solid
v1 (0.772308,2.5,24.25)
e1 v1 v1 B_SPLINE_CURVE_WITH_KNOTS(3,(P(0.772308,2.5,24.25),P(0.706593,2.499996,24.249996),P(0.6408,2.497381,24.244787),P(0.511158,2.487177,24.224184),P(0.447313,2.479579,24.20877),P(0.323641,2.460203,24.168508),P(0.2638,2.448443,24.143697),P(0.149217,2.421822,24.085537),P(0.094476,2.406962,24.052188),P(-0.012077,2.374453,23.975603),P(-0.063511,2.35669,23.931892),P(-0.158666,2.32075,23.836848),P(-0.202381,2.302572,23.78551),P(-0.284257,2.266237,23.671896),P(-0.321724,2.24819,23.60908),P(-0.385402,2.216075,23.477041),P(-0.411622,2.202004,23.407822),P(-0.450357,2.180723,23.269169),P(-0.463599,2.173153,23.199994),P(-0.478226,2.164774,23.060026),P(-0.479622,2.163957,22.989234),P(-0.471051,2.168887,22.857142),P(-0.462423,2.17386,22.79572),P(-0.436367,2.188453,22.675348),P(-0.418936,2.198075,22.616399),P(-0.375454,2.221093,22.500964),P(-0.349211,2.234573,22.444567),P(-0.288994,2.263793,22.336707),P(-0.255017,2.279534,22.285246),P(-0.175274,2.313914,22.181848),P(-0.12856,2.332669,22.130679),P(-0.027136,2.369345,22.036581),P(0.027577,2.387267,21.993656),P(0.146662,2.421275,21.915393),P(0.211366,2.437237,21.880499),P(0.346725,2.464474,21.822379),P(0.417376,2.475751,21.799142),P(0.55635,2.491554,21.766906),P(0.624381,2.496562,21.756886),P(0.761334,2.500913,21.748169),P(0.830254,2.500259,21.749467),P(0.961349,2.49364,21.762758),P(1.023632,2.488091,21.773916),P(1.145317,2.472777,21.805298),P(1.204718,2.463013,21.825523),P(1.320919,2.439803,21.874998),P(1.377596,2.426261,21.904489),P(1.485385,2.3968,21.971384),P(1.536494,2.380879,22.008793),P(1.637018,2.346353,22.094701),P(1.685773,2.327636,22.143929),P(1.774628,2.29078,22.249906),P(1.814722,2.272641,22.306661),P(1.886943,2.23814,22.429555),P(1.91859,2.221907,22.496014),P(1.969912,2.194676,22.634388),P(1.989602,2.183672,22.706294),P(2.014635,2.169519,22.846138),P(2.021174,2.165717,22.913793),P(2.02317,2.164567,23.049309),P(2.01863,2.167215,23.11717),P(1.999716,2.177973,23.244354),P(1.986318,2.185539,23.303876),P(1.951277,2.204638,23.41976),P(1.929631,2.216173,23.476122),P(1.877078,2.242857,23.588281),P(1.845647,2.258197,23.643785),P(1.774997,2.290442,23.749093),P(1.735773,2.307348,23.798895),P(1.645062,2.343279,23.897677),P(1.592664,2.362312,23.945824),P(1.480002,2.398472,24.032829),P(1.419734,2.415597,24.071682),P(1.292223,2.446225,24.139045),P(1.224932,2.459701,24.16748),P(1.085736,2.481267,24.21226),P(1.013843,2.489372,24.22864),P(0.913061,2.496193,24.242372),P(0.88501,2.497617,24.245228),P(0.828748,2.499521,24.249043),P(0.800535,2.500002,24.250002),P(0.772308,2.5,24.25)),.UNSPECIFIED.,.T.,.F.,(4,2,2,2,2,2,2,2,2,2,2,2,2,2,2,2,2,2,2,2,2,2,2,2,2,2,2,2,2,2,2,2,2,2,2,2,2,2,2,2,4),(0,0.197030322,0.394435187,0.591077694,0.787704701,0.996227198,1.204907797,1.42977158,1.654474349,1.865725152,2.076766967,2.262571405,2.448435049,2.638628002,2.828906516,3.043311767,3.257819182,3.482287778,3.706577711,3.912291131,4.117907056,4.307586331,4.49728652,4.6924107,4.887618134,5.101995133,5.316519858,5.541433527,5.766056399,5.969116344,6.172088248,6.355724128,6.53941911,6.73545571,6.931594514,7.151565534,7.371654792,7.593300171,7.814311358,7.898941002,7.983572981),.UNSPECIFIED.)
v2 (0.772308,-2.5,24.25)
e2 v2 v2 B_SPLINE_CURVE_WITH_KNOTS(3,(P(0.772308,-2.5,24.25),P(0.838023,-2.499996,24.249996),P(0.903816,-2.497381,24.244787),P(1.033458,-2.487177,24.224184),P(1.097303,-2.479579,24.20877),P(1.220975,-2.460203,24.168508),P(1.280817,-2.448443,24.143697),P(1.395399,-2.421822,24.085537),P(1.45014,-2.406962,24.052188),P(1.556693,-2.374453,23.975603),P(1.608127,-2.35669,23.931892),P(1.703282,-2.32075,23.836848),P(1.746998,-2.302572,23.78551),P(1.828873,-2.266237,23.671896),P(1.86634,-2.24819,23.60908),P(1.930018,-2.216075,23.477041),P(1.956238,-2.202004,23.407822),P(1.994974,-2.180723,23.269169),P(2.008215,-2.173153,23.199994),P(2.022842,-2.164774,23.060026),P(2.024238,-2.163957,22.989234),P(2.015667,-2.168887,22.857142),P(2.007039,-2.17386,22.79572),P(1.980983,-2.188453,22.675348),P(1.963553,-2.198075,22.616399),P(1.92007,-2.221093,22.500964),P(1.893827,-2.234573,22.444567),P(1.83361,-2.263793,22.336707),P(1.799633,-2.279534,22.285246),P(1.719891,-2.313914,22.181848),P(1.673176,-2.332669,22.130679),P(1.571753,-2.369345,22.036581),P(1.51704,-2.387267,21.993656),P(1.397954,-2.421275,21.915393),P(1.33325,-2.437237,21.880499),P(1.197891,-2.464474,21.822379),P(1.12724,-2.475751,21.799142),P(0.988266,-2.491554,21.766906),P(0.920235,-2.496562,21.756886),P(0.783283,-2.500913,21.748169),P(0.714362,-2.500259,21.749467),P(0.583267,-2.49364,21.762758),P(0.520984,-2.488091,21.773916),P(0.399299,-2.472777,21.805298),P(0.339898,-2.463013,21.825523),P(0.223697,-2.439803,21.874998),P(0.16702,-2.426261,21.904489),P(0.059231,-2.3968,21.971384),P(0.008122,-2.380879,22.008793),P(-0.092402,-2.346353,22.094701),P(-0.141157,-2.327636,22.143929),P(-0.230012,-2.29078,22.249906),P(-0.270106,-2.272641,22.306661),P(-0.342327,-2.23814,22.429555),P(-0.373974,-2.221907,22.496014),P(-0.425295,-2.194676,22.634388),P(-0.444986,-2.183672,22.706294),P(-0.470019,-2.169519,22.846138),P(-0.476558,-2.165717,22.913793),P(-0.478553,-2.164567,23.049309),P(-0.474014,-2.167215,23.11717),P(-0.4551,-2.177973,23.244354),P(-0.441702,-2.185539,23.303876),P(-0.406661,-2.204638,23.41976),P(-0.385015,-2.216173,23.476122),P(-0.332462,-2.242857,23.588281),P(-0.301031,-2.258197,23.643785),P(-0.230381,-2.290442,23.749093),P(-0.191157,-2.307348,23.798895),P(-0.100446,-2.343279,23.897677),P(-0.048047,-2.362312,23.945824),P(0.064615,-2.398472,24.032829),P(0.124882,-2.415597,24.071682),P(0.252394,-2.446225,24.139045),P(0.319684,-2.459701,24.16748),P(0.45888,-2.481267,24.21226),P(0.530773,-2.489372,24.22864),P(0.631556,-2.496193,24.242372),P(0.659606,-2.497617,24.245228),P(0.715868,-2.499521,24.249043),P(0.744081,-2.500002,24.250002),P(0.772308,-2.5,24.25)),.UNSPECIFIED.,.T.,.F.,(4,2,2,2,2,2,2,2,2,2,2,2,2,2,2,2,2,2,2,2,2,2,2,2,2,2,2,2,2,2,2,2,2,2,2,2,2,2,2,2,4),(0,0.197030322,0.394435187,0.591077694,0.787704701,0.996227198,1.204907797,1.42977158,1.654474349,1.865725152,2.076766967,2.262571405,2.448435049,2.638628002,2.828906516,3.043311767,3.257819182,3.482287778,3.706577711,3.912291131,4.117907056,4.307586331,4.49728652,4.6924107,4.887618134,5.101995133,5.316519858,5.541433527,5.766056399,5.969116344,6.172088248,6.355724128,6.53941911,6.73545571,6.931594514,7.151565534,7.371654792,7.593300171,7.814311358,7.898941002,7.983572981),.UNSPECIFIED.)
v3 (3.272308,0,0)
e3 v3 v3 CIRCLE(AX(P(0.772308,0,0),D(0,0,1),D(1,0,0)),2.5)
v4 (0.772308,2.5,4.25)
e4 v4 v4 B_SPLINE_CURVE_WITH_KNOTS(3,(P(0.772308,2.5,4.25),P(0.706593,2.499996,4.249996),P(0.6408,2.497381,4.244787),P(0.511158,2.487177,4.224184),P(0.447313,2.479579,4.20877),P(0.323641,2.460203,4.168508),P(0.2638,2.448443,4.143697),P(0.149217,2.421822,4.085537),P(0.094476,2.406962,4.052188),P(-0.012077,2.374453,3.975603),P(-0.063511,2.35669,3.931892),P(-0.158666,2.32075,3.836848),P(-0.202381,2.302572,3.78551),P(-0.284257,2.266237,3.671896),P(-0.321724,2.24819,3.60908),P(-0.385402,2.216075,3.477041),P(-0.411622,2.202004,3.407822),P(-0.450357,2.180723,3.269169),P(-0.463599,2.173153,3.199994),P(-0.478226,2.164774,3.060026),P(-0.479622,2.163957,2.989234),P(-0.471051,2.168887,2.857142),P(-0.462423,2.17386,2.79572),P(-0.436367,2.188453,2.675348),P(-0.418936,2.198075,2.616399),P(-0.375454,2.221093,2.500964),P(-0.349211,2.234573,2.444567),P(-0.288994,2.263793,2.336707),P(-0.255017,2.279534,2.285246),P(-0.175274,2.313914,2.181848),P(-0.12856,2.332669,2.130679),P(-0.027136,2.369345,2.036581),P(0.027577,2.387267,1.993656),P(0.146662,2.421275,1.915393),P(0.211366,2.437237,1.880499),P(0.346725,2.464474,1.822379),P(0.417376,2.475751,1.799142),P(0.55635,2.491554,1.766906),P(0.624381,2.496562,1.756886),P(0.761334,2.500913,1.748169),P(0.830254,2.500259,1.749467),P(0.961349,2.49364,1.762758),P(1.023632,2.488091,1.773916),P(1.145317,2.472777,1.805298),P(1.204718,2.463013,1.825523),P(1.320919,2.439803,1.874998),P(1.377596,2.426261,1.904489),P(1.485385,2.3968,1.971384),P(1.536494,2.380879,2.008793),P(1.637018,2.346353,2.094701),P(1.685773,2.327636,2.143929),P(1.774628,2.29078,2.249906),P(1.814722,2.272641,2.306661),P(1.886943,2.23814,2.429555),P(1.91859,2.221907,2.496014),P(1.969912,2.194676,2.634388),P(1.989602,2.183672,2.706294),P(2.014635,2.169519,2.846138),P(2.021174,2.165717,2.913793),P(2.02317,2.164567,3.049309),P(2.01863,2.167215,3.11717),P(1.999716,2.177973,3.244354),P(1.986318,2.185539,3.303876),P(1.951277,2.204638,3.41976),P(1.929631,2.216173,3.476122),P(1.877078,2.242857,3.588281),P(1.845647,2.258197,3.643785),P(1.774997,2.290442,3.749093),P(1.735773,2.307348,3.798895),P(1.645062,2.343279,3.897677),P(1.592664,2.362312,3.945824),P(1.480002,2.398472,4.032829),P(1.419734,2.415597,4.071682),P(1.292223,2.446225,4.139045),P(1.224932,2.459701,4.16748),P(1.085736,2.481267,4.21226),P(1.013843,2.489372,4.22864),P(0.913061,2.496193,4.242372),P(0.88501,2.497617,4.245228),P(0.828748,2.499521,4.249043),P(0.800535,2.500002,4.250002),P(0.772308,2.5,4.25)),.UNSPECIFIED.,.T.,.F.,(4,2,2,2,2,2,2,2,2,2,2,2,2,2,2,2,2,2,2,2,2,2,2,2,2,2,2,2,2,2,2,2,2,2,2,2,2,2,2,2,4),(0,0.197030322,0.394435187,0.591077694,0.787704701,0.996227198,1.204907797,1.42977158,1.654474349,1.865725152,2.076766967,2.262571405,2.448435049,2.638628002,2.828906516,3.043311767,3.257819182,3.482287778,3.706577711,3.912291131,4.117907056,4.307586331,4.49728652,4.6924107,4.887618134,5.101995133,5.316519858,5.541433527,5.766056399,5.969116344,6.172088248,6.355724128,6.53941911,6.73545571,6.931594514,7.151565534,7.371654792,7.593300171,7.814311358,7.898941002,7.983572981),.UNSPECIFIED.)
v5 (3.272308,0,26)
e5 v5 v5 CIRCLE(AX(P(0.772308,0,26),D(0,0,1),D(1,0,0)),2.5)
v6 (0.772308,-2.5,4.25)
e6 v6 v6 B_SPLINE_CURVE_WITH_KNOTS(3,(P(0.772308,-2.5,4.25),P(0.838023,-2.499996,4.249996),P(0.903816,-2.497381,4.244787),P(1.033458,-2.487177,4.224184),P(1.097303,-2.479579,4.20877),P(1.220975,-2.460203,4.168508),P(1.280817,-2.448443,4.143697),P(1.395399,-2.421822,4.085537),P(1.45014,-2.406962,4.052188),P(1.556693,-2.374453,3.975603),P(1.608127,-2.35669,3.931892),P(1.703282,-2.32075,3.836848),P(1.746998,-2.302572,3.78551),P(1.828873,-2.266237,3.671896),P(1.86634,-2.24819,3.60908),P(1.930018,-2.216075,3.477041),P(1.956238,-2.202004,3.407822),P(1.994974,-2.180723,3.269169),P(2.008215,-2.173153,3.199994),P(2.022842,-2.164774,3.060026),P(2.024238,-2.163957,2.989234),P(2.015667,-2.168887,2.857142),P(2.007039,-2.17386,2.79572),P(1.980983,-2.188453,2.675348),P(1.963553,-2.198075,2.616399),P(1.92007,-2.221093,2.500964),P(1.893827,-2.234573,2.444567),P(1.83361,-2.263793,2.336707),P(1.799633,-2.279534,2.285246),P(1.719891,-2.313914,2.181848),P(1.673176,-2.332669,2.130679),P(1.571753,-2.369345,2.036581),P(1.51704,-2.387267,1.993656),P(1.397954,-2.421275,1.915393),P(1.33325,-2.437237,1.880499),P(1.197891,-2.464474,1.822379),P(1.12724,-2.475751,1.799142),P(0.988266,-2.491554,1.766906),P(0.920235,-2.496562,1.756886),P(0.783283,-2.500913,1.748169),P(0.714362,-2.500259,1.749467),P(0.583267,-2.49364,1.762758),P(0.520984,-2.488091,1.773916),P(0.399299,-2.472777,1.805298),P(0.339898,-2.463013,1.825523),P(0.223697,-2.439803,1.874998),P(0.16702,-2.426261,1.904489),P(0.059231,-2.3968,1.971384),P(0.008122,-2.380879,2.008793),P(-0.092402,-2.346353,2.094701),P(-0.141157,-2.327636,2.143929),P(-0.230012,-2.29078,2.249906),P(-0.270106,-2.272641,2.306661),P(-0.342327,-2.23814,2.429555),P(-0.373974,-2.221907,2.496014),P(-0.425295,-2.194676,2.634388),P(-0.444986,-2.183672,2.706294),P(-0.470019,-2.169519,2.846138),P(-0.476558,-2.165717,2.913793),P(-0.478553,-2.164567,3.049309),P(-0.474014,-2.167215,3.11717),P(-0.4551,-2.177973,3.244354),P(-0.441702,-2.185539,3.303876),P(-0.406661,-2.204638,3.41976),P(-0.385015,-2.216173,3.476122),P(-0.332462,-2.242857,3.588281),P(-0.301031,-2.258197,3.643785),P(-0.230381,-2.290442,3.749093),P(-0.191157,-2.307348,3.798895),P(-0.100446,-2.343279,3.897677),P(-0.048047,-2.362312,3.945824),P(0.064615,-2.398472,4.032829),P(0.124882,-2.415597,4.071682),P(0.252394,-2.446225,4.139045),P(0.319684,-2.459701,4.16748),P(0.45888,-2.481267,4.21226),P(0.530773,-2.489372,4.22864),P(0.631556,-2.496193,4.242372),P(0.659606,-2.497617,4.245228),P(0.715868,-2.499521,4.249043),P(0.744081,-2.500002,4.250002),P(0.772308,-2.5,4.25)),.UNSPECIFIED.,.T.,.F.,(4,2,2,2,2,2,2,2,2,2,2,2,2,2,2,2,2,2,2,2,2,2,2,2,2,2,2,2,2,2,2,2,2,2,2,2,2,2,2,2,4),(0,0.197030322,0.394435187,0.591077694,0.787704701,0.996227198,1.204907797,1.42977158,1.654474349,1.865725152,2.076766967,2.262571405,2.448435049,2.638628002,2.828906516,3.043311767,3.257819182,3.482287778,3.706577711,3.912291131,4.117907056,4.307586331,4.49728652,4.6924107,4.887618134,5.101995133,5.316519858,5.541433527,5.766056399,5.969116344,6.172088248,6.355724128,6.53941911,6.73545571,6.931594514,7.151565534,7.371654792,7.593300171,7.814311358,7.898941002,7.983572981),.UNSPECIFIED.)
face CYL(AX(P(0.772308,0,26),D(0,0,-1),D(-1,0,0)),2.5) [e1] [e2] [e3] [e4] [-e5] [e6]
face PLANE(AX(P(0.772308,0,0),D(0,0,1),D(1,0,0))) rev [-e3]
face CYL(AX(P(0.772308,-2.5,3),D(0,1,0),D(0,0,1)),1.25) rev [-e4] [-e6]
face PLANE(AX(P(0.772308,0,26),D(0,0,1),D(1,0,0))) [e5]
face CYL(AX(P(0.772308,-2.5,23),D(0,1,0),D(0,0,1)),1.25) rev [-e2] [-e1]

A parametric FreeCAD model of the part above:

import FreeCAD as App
import Part
import Sketcher
from FreeCAD import Vector
Q = App.Units.Quantity

doc = App.newDocument("Part")
body = doc.addObject("PartDesign::Body", "Body")

# Sketch on XY plane
sketch1 = body.newObject("Sketcher::SketchObject", "Sketch")
sketch1.AttachmentSupport = (doc.getObject("XY_Plane"), [""])
sketch1.MapMode = "FlatFace"
sketch1.addGeometry(Part.Circle(Vector(0.772308, 0, 0), Vector(0, 0, 1), 2.5), False)
sketch1.addConstraint([
    Sketcher.Constraint("PointOnObject", 0, 3, -1),
    Sketcher.Constraint("Diameter", 0, Q("5 mm")),
    Sketcher.Constraint("DistanceX", -1, 1, 0, 3, Q("0.772308 mm")),
])
pad1 = body.newObject("PartDesign::Pad", "Pad")
pad1.Profile = sketch1
pad1.Length = 26

# Sketch on XZ plane
sketch2 = body.newObject("Sketcher::SketchObject", "Sketch001")
sketch2.AttachmentSupport = (doc.getObject("XZ_Plane"), [""])
sketch2.MapMode = "FlatFace"
sketch2.addGeometry([
    Part.Circle(Vector(0.772308, 3, 0), Vector(0, 0, 1), 1.25),
    Part.Circle(Vector(0.772308, 23, 0), Vector(0, 0, 1), 1.25),
], False)
sketch2.addConstraint([
    Sketcher.Constraint("Equal", 0, 1),
    Sketcher.Constraint("Vertical", 0, 3, 1, 3),
    Sketcher.Constraint("Diameter", 0, Q("2.5 mm")),
    Sketcher.Constraint("DistanceY", -1, 1, 0, 3, Q("3 mm")),
    Sketcher.Constraint("DistanceY", -1, 1, 1, 3, Q("23 mm")),
    Sketcher.Constraint("DistanceX", -1, 1, 0, 3, Q("0.772308 mm")),
])
pocket1 = body.newObject("PartDesign::Pocket", "Pocket")
pocket1.Profile = sketch2
pocket1.Type = "ThroughAll"
pocket1.Midplane = True

doc.recompute()
